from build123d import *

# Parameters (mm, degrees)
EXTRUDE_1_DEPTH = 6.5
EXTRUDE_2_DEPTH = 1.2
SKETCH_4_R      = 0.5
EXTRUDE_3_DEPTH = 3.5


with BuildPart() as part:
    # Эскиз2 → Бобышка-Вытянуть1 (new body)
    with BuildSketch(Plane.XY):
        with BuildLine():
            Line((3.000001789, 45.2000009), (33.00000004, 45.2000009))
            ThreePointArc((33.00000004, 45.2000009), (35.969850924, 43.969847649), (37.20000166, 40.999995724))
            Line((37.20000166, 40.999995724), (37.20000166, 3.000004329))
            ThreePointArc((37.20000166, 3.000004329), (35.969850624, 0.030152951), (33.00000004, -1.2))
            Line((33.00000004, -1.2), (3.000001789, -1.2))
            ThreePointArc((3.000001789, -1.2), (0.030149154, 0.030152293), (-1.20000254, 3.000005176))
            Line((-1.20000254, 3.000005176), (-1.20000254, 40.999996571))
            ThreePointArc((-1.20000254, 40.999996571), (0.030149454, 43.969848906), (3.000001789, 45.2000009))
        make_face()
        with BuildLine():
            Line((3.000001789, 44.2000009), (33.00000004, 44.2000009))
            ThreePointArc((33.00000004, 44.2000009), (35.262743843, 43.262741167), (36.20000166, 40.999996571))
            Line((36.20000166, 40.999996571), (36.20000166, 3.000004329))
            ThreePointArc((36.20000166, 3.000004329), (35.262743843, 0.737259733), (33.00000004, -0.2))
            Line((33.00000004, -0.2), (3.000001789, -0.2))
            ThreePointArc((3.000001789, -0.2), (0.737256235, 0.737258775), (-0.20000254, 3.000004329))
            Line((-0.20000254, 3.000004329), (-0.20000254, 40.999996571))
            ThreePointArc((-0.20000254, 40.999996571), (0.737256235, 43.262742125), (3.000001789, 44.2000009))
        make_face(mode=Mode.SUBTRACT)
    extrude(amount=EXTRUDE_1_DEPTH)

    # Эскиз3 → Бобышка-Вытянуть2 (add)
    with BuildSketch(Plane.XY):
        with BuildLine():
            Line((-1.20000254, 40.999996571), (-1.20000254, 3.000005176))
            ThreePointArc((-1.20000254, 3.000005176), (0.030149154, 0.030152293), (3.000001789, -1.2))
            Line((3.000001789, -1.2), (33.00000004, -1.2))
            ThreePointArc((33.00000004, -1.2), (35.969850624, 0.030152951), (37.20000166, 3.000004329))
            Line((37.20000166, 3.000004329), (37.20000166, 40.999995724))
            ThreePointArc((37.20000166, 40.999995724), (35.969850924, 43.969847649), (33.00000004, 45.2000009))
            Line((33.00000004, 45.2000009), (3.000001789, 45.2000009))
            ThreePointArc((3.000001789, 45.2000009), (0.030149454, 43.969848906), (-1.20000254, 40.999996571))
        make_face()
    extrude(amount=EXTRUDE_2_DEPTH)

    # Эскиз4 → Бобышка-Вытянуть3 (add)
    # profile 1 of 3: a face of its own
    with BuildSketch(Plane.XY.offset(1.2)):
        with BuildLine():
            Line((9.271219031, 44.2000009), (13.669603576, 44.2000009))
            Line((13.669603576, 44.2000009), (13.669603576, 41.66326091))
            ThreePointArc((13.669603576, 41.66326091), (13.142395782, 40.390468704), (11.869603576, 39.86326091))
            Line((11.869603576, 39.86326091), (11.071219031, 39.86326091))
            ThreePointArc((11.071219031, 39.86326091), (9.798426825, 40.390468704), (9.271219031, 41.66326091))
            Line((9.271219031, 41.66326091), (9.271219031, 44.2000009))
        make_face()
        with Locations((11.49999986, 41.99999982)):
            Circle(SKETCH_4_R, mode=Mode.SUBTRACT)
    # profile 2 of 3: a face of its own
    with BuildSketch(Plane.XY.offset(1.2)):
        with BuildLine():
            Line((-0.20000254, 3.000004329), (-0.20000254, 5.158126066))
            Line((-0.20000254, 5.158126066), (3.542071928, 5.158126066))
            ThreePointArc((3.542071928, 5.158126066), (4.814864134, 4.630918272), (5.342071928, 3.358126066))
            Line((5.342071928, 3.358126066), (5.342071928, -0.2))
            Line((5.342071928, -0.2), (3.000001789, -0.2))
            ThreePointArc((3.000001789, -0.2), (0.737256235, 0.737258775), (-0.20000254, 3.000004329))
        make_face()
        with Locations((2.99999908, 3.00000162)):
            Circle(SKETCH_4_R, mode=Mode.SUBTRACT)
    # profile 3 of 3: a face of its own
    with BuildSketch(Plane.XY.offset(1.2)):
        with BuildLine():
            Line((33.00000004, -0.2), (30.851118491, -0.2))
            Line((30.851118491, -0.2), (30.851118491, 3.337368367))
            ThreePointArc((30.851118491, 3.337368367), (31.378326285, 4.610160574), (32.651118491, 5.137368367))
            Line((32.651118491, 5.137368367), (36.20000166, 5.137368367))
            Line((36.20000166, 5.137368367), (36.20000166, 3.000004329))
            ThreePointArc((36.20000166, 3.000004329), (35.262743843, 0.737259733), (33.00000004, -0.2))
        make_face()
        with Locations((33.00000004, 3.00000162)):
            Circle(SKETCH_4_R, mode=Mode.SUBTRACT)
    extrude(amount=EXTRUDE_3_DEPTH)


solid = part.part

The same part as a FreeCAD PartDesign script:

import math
import FreeCAD as App
import Part
import Sketcher
from FreeCAD import Vector

doc = App.newDocument("Part")
params = doc.addObject("Spreadsheet::Sheet", "Params")
for row, (alias, value) in enumerate([
    ("sketch1_radius", "4.200002 mm"),
    ("sketch1_radius2", "3.200002 mm"),
    ("sketch1_width", "29.999998 mm"),
    ("pad1_length", "6.5 mm"),
    ("sketch2_radius", "4.200002 mm"),
    ("sketch2_width", "29.999998 mm"),
    ("pad2_length", "1.2 mm"),
    ("sketch3_diameter", "1 mm"),
    ("sketch3_radius", "1.8 mm"),
    ("sketch3_radius2", "3.200002 mm"),
    ("pad3_length", "3.5 mm"),
], start=1):
    params.set(f"A{row}", alias)
    params.set(f"B{row}", "=" + value)
    params.setAlias(f"B{row}", alias)

body = doc.addObject("PartDesign::Body", "Body")

# Sketch on XY plane
sketch1 = doc.addObject("Sketcher::SketchObject", "Sketch")
body.addObject(sketch1)
sketch1.AttachmentSupport = (doc.XY_Plane, [""])
sketch1.MapMode = "FlatFace"
sketch1.addGeometry(Part.LineSegment(Vector(33, 45.2, 0), Vector(3, 45.2, 0)), False)
sketch1.addGeometry(Part.ArcOfCircle(Part.Circle(Vector(3, 41, 0), Vector(0, 0, 1), 4.2), math.radians(90), math.radians(180)), False)
sketch1.addGeometry(Part.LineSegment(Vector(-1.2, 41, 0), Vector(-1.2, 3, 0)), False)
sketch1.addGeometry(Part.ArcOfCircle(Part.Circle(Vector(3, 3, 0), Vector(0, 0, 1), 4.2), math.radians(180), math.radians(270)), False)
sketch1.addGeometry(Part.LineSegment(Vector(3, -1.2, 0), Vector(33, -1.2, 0)), False)
sketch1.addGeometry(Part.ArcOfCircle(Part.Circle(Vector(33, 3, 0), Vector(0, 0, 1), 4.2), math.radians(-90), math.radians(0)), False)
sketch1.addGeometry(Part.LineSegment(Vector(37.2, 3, 0), Vector(37.2, 41, 0)), False)
sketch1.addGeometry(Part.ArcOfCircle(Part.Circle(Vector(33, 41, 0), Vector(0, 0, 1), 4.2), math.radians(0), math.radians(90)), False)
sketch1.addGeometry(Part.LineSegment(Vector(3, 44.2, 0), Vector(33, 44.2, 0)), False)
sketch1.addGeometry(Part.ArcOfCircle(Part.Circle(Vector(33, 41, 0), Vector(0, 0, 1), 3.2), math.radians(0), math.radians(90)), False)
sketch1.addGeometry(Part.LineSegment(Vector(36.2, 41, 0), Vector(36.2, 3, 0)), False)
sketch1.addGeometry(Part.ArcOfCircle(Part.Circle(Vector(33, 3, 0), Vector(0, 0, 1), 3.2), math.radians(-90), math.radians(0)), False)
sketch1.addGeometry(Part.LineSegment(Vector(33, -0.2, 0), Vector(3, -0.2, 0)), False)
sketch1.addGeometry(Part.ArcOfCircle(Part.Circle(Vector(3, 3, 0), Vector(0, 0, 1), 3.2), math.radians(180), math.radians(270)), False)
sketch1.addGeometry(Part.LineSegment(Vector(-0.2, 3, 0), Vector(-0.2, 41, 0)), False)
sketch1.addGeometry(Part.ArcOfCircle(Part.Circle(Vector(3, 41, 0), Vector(0, 0, 1), 3.2), math.radians(90), math.radians(180)), False)
sketch1.addConstraint(Sketcher.Constraint("Tangent", 0, 2, 1, 1))
sketch1.addConstraint(Sketcher.Constraint("Tangent", 1, 2, 2, 1))
sketch1.addConstraint(Sketcher.Constraint("Tangent", 2, 2, 3, 1))
sketch1.addConstraint(Sketcher.Constraint("Tangent", 3, 2, 4, 1))
sketch1.addConstraint(Sketcher.Constraint("Tangent", 4, 2, 5, 1))
sketch1.addConstraint(Sketcher.Constraint("Tangent", 5, 2, 6, 1))
sketch1.addConstraint(Sketcher.Constraint("Tangent", 6, 2, 7, 1))
sketch1.addConstraint(Sketcher.Constraint("Tangent", 7, 2, 0, 1))
sketch1.addConstraint(Sketcher.Constraint("Tangent", 8, 2, 9, 2))
sketch1.addConstraint(Sketcher.Constraint("Tangent", 9, 1, 10, 1))
sketch1.addConstraint(Sketcher.Constraint("Tangent", 10, 2, 11, 2))
sketch1.addConstraint(Sketcher.Constraint("Tangent", 11, 1, 12, 1))
sketch1.addConstraint(Sketcher.Constraint("Tangent", 12, 2, 13, 2))
sketch1.addConstraint(Sketcher.Constraint("Tangent", 13, 1, 14, 1))
sketch1.addConstraint(Sketcher.Constraint("Tangent", 14, 2, 15, 2))
sketch1.addConstraint(Sketcher.Constraint("Tangent", 15, 1, 8, 1))
sketch1.addConstraint(Sketcher.Constraint("Horizontal", 0))
sketch1.addConstraint(Sketcher.Constraint("Vertical", 2))
sketch1.addConstraint(Sketcher.Constraint("Horizontal", 4))
sketch1.addConstraint(Sketcher.Constraint("Vertical", 6))
sketch1.addConstraint(Sketcher.Constraint("Horizontal", 8))
sketch1.addConstraint(Sketcher.Constraint("Vertical", 10))
sketch1.addConstraint(Sketcher.Constraint("Horizontal", 12))
sketch1.addConstraint(Sketcher.Constraint("Vertical", 14))
sketch1.addConstraint(Sketcher.Constraint("Coincident", 9, 3, 7, 3))
sketch1.addConstraint(Sketcher.Constraint("Coincident", 11, 3, 5, 3))
sketch1.addConstraint(Sketcher.Constraint("Coincident", 13, 3, 3, 3))
sketch1.addConstraint(Sketcher.Constraint("Equal", 1, 3))
sketch1.addConstraint(Sketcher.Constraint("Equal", 3, 5))
sketch1.addConstraint(Sketcher.Constraint("Equal", 5, 7))
sketch1.addConstraint(Sketcher.Constraint("Equal", 13, 15))
sketch1.addConstraint(Sketcher.Constraint("Radius", 1, 4.200002))
sketch1.addConstraint(Sketcher.Constraint("Radius", 9, 3.200002))
sketch1.addConstraint(Sketcher.Constraint("DistanceX", 0, 2, 0, 1, 29.999998))
sketch1.addConstraint(Sketcher.Constraint("DistanceX", -1, 1, 1, 3, 2.999999))
sketch1.addConstraint(Sketcher.Constraint("DistanceY", -1, 1, 1, 3, 40.999999))
sketch1.addConstraint(Sketcher.Constraint("DistanceY", -1, 1, 3, 3, 3.000002))
sketch1.setExpression("Constraints[31]", "Params.sketch1_radius")
sketch1.setExpression("Constraints[32]", "Params.sketch1_radius2")
sketch1.setExpression("Constraints[33]", "Params.sketch1_width")
pad1 = doc.addObject("PartDesign::Pad", "Pad")
body.addObject(pad1)
pad1.Profile = sketch1
pad1.setExpression("Length", "Params.pad1_length")

# Sketch on XY plane
sketch2 = doc.addObject("Sketcher::SketchObject", "Sketch001")
body.addObject(sketch2)
sketch2.AttachmentSupport = (doc.XY_Plane, [""])
sketch2.MapMode = "FlatFace"
sketch2.addGeometry(Part.LineSegment(Vector(-1.2, 41, 0), Vector(-1.2, 3, 0)), False)
sketch2.addGeometry(Part.ArcOfCircle(Part.Circle(Vector(3, 3, 0), Vector(0, 0, 1), 4.2), math.radians(180), math.radians(270)), False)
sketch2.addGeometry(Part.LineSegment(Vector(3, -1.2, 0), Vector(33, -1.2, 0)), False)
sketch2.addGeometry(Part.ArcOfCircle(Part.Circle(Vector(33, 3, 0), Vector(0, 0, 1), 4.2), math.radians(-90), math.radians(0)), False)
sketch2.addGeometry(Part.LineSegment(Vector(37.2, 3, 0), Vector(37.2, 41, 0)), False)
sketch2.addGeometry(Part.ArcOfCircle(Part.Circle(Vector(33, 41, 0), Vector(0, 0, 1), 4.2), math.radians(0), math.radians(90)), False)
sketch2.addGeometry(Part.LineSegment(Vector(33, 45.2, 0), Vector(3, 45.2, 0)), False)
sketch2.addGeometry(Part.ArcOfCircle(Part.Circle(Vector(3, 41, 0), Vector(0, 0, 1), 4.2), math.radians(90), math.radians(180)), False)
sketch2.addConstraint(Sketcher.Constraint("Tangent", 0, 2, 1, 1))
sketch2.addConstraint(Sketcher.Constraint("Tangent", 1, 2, 2, 1))
sketch2.addConstraint(Sketcher.Constraint("Tangent", 2, 2, 3, 1))
sketch2.addConstraint(Sketcher.Constraint("Tangent", 3, 2, 4, 1))
sketch2.addConstraint(Sketcher.Constraint("Tangent", 4, 2, 5, 1))
sketch2.addConstraint(Sketcher.Constraint("Tangent", 5, 2, 6, 1))
sketch2.addConstraint(Sketcher.Constraint("Tangent", 6, 2, 7, 1))
sketch2.addConstraint(Sketcher.Constraint("Tangent", 7, 2, 0, 1))
sketch2.addConstraint(Sketcher.Constraint("Vertical", 0))
sketch2.addConstraint(Sketcher.Constraint("Horizontal", 2))
sketch2.addConstraint(Sketcher.Constraint("Vertical", 4))
sketch2.addConstraint(Sketcher.Constraint("Horizontal", 6))
sketch2.addConstraint(Sketcher.Constraint("Equal", 1, 3))
sketch2.addConstraint(Sketcher.Constraint("Equal", 3, 5))
sketch2.addConstraint(Sketcher.Constraint("Equal", 5, 7))
sketch2.addConstraint(Sketcher.Constraint("Radius", 1, 4.200002))
sketch2.addConstraint(Sketcher.Constraint("DistanceX", 2, 1, 2, 2, 29.999998))
sketch2.addConstraint(Sketcher.Constraint("DistanceX", -1, 1, 1, 3, 2.999999))
sketch2.addConstraint(Sketcher.Constraint("DistanceY", -1, 1, 1, 3, 3.000002))
sketch2.addConstraint(Sketcher.Constraint("DistanceY", -1, 1, 5, 3, 40.999999))
sketch2.setExpression("Constraints[15]", "Params.sketch2_radius")
sketch2.setExpression("Constraints[16]", "Params.sketch2_width")
pad2 = doc.addObject("PartDesign::Pad", "Pad001")
body.addObject(pad2)
pad2.Profile = sketch2
pad2.setExpression("Length", "Params.pad2_length")

# Sketch on XY plane
sketch3 = doc.addObject("Sketcher::SketchObject", "Sketch002")
body.addObject(sketch3)
sketch3.AttachmentSupport = (doc.XY_Plane, [""])
sketch3.MapMode = "FlatFace"
sketch3.AttachmentOffset = App.Placement(Vector(0, 0, 1.2), App.Rotation())
sketch3.addGeometry(Part.LineSegment(Vector(13.7, 44.2, 0), Vector(9.3, 44.2, 0)), False)
sketch3.addGeometry(Part.LineSegment(Vector(9.3, 44.2, 0), Vector(9.3, 41.7, 0)), False)
sketch3.addGeometry(Part.ArcOfCircle(Part.Circle(Vector(11.1, 41.7, 0), Vector(0, 0, 1), 1.8), math.radians(180), math.radians(270)), False)
sketch3.addGeometry(Part.LineSegment(Vector(11.1, 39.9, 0), Vector(11.9, 39.9, 0)), False)
sketch3.addGeometry(Part.ArcOfCircle(Part.Circle(Vector(11.9, 41.7, 0), Vector(0, 0, 1), 1.8), math.radians(-90), math.radians(0)), False)
sketch3.addGeometry(Part.LineSegment(Vector(13.7, 41.7, 0), Vector(13.7, 44.2, 0)), False)
sketch3.addGeometry(Part.Circle(Vector(11.5, 42, 0), Vector(0, 0, 1), 0.5), False)
sketch3.addGeometry(Part.LineSegment(Vector(-0.2, 5.2, 0), Vector(-0.2, 3, 0)), False)
sketch3.addGeometry(Part.ArcOfCircle(Part.Circle(Vector(3, 3, 0), Vector(0, 0, 1), 3.2), math.radians(180), math.radians(270)), False)
sketch3.addGeometry(Part.LineSegment(Vector(3, -0.2, 0), Vector(5.3, -0.2, 0)), False)
sketch3.addGeometry(Part.LineSegment(Vector(5.3, -0.2, 0), Vector(5.3, 3.4, 0)), False)
sketch3.addGeometry(Part.ArcOfCircle(Part.Circle(Vector(3.5, 3.4, 0), Vector(0, 0, 1), 1.8), math.radians(0), math.radians(90)), False)
sketch3.addGeometry(Part.LineSegment(Vector(3.5, 5.2, 0), Vector(-0.2, 5.2, 0)), False)
sketch3.addGeometry(Part.Circle(Vector(3, 3, 0), Vector(0, 0, 1), 0.5), False)
sketch3.addGeometry(Part.LineSegment(Vector(30.9, -0.2, 0), Vector(33, -0.2, 0)), False)
sketch3.addGeometry(Part.ArcOfCircle(Part.Circle(Vector(33, 3, 0), Vector(0, 0, 1), 3.2), math.radians(-90), math.radians(0)), False)
sketch3.addGeometry(Part.LineSegment(Vector(36.2, 3, 0), Vector(36.2, 5.1, 0)), False)
sketch3.addGeometry(Part.LineSegment(Vector(36.2, 5.1, 0), Vector(32.7, 5.1, 0)), False)
sketch3.addGeometry(Part.ArcOfCircle(Part.Circle(Vector(32.7, 3.3, 0), Vector(0, 0, 1), 1.8), math.radians(90), math.radians(180)), False)
sketch3.addGeometry(Part.LineSegment(Vector(30.9, 3.3, 0), Vector(30.9, -0.2, 0)), False)
sketch3.addGeometry(Part.Circle(Vector(33, 3, 0), Vector(0, 0, 1), 0.5), False)
sketch3.addConstraint(Sketcher.Constraint("Coincident", 0, 2, 1, 1))
sketch3.addConstraint(Sketcher.Constraint("Tangent", 1, 2, 2, 1))
sketch3.addConstraint(Sketcher.Constraint("Tangent", 2, 2, 3, 1))
sketch3.addConstraint(Sketcher.Constraint("Tangent", 3, 2, 4, 1))
sketch3.addConstraint(Sketcher.Constraint("Tangent", 4, 2, 5, 1))
sketch3.addConstraint(Sketcher.Constraint("Coincident", 5, 2, 0, 1))
sketch3.addConstraint(Sketcher.Constraint("Tangent", 7, 2, 8, 1))
sketch3.addConstraint(Sketcher.Constraint("Tangent", 8, 2, 9, 1))
sketch3.addConstraint(Sketcher.Constraint("Coincident", 9, 2, 10, 1))
sketch3.addConstraint(Sketcher.Constraint("Tangent", 10, 2, 11, 1))
sketch3.addConstraint(Sketcher.Constraint("Tangent", 11, 2, 12, 1))
sketch3.addConstraint(Sketcher.Constraint("Coincident", 12, 2, 7, 1))
sketch3.addConstraint(Sketcher.Constraint("Tangent", 14, 2, 15, 1))
sketch3.addConstraint(Sketcher.Constraint("Tangent", 15, 2, 16, 1))
sketch3.addConstraint(Sketcher.Constraint("Coincident", 16, 2, 17, 1))
sketch3.addConstraint(Sketcher.Constraint("Tangent", 17, 2, 18, 1))
sketch3.addConstraint(Sketcher.Constraint("Tangent", 18, 2, 19, 1))
sketch3.addConstraint(Sketcher.Constraint("Coincident", 19, 2, 14, 1))
sketch3.addConstraint(Sketcher.Constraint("Horizontal", 0))
sketch3.addConstraint(Sketcher.Constraint("Vertical", 1))
sketch3.addConstraint(Sketcher.Constraint("Horizontal", 3))
sketch3.addConstraint(Sketcher.Constraint("Vertical", 5))
sketch3.addConstraint(Sketcher.Constraint("Vertical", 7))
sketch3.addConstraint(Sketcher.Constraint("Horizontal", 9))
sketch3.addConstraint(Sketcher.Constraint("Vertical", 10))
sketch3.addConstraint(Sketcher.Constraint("Horizontal", 12))
sketch3.addConstraint(Sketcher.Constraint("Horizontal", 14))
sketch3.addConstraint(Sketcher.Constraint("Vertical", 16))
sketch3.addConstraint(Sketcher.Constraint("Horizontal", 17))
sketch3.addConstraint(Sketcher.Constraint("Vertical", 19))
sketch3.addConstraint(Sketcher.Constraint("Coincident", 13, 3, 8, 3))
sketch3.addConstraint(Sketcher.Constraint("Coincident", 20, 3, 15, 3))
sketch3.addConstraint(Sketcher.Constraint("Equal", 2, 4))
sketch3.addConstraint(Sketcher.Constraint("Equal", 4, 11))
sketch3.addConstraint(Sketcher.Constraint("Equal", 6, 13))
sketch3.addConstraint(Sketcher.Constraint("Equal", 8, 15))
sketch3.addConstraint(Sketcher.Constraint("Equal", 11, 18))
sketch3.addConstraint(Sketcher.Constraint("Equal", 13, 20))
sketch3.addConstraint(Sketcher.Constraint("Horizontal", 13, 3, 15, 3))
sketch3.addConstraint(Sketcher.Constraint("Diameter", 6, 1.0))
sketch3.addConstraint(Sketcher.Constraint("Radius", 2, 1.8))
sketch3.addConstraint(Sketcher.Constraint("Radius", 8, 3.200002))
sketch3.addConstraint(Sketcher.Constraint("DistanceY", -1, 1, 6, 3, 42.0))
sketch3.addConstraint(Sketcher.Constraint("DistanceX", -1, 1, 8, 3, 2.999999))
sketch3.addConstraint(Sketcher.Constraint("DistanceY", -1, 1, 8, 3, 3.000002))
sketch3.addConstraint(Sketcher.Constraint("DistanceX", -1, 1, 15, 3, 33.0))
sketch3.addConstraint(Sketcher.Constraint("DistanceX", -1, 1, 6, 3, 11.5))
sketch3.addConstraint(Sketcher.Constraint("DistanceY", -1, 1, 0, 2, 44.200001))
sketch3.addConstraint(Sketcher.Constraint("DistanceX", 9, 1, 9, 2, 2.34207))
sketch3.addConstraint(Sketcher.Constraint("DistanceX", 14, 1, 14, 2, 2.148882))
sketch3.addConstraint(Sketcher.Constraint("DistanceY", 1, 2, 1, 1, 2.53674))
sketch3.addConstraint(Sketcher.Constraint("DistanceY", 7, 2, 7, 1, 2.158122))
sketch3.addConstraint(Sketcher.Constraint("DistanceY", 19, 2, 19, 1, 3.537368))
sketch3.addConstraint(Sketcher.Constraint("DistanceX", 0, 2, 0, 1, 4.398385))
sketch3.addConstraint(Sketcher.Constraint("DistanceX", -1, 1, 2, 3, 11.071219))
sketch3.setExpression("Constraints[39]", "Params.sketch3_diameter")
sketch3.setExpression("Constraints[40]", "Params.sketch3_radius")
sketch3.setExpression("Constraints[41]", "Params.sketch3_radius2")
pad3 = doc.addObject("PartDesign::Pad", "Pad002")
body.addObject(pad3)
pad3.Profile = sketch3
pad3.setExpression("Length", "Params.pad3_length")

doc.recompute()
